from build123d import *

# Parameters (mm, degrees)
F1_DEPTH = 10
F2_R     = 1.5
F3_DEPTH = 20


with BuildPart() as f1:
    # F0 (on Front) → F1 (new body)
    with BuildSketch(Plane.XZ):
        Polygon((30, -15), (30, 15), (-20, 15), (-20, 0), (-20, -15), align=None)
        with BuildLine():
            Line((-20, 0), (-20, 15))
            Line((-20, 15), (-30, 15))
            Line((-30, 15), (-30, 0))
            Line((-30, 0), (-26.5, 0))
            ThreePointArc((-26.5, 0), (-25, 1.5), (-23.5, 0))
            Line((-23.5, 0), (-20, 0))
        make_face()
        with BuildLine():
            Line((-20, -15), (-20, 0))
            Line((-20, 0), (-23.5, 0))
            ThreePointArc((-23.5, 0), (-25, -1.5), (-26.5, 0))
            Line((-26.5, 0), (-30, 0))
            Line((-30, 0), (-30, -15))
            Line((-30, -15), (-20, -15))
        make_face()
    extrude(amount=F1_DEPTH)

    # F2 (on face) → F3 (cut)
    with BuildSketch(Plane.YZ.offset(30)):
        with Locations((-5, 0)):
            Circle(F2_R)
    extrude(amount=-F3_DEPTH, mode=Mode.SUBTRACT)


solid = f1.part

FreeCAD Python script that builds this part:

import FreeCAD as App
import Part
import Sketcher
Q = App.Units.Quantity


def add_polygon(sketch, points):
    """Adds a closed chain of lines whose ends are joined by coincident constraints."""
    first, n = sketch.GeometryCount, len(points)
    for a, b in zip(points, points[1:] + points[:1]):
        sketch.addGeometry(Part.LineSegment(App.Vector(*a, 0), App.Vector(*b, 0)), False)
    for i in range(n):
        sketch.addConstraint(Sketcher.Constraint("Coincident", first + i, 2, first + (i + 1) % n, 1))

doc = App.newDocument("Part")
body = doc.addObject("PartDesign::Body", "Body")

# Sketch on XZ plane
sketch1 = body.newObject("Sketcher::SketchObject", "Sketch")
sketch1.AttachmentSupport = (doc.getObject("XZ_Plane"), [""])
sketch1.MapMode = "FlatFace"
add_polygon(sketch1, [(30, -15), (30, 15), (-30, 15), (-30, -15)])  # lines 0-3
sketch1.addGeometry(Part.Circle(App.Vector(-25, 0, 0), App.Vector(0, 0, 1), 1.5), False)  # 4
sketch1.addConstraint([
    Sketcher.Constraint("Vertical", 0),
    Sketcher.Constraint("Horizontal", 1),
    Sketcher.Constraint("Vertical", 2),
    Sketcher.Constraint("Horizontal", 3),
    Sketcher.Constraint("Symmetric", 0, 2, 2, 2, -1, 1),
    Sketcher.Constraint("PointOnObject", 4, 3, -1),
    Sketcher.Constraint("Diameter", 4, Q("3 mm")),
    Sketcher.Constraint("DistanceX", 1, 2, 1, 1, Q("60 mm")),
    Sketcher.Constraint("DistanceY", 0, 1, 0, 2, Q("30 mm")),
    Sketcher.Constraint("DistanceX", 4, 3, -1, 1, Q("25 mm")),
])
pad1 = body.newObject("PartDesign::Pad", "Pad")
pad1.Profile = sketch1
pad1.Length = 10

# Sketch on YZ plane
sketch2 = body.newObject("Sketcher::SketchObject", "Sketch001")
sketch2.AttachmentSupport = (doc.getObject("YZ_Plane"), [""])
sketch2.MapMode = "FlatFace"
sketch2.AttachmentOffset = App.Placement(App.Vector(0, 0, 30), App.Rotation())
sketch2.addGeometry(Part.Circle(App.Vector(-5, 0, 0), App.Vector(0, 0, 1), 1.5), False)
sketch2.addConstraint([
    Sketcher.Constraint("PointOnObject", 0, 3, -1),
    Sketcher.Constraint("Diameter", 0, Q("3 mm")),
    Sketcher.Constraint("DistanceX", 0, 3, -1, 1, Q("5 mm")),
])
pocket1 = body.newObject("PartDesign::Pocket", "Pocket")
pocket1.Profile = sketch2
pocket1.Length = 20

doc.recompute()
